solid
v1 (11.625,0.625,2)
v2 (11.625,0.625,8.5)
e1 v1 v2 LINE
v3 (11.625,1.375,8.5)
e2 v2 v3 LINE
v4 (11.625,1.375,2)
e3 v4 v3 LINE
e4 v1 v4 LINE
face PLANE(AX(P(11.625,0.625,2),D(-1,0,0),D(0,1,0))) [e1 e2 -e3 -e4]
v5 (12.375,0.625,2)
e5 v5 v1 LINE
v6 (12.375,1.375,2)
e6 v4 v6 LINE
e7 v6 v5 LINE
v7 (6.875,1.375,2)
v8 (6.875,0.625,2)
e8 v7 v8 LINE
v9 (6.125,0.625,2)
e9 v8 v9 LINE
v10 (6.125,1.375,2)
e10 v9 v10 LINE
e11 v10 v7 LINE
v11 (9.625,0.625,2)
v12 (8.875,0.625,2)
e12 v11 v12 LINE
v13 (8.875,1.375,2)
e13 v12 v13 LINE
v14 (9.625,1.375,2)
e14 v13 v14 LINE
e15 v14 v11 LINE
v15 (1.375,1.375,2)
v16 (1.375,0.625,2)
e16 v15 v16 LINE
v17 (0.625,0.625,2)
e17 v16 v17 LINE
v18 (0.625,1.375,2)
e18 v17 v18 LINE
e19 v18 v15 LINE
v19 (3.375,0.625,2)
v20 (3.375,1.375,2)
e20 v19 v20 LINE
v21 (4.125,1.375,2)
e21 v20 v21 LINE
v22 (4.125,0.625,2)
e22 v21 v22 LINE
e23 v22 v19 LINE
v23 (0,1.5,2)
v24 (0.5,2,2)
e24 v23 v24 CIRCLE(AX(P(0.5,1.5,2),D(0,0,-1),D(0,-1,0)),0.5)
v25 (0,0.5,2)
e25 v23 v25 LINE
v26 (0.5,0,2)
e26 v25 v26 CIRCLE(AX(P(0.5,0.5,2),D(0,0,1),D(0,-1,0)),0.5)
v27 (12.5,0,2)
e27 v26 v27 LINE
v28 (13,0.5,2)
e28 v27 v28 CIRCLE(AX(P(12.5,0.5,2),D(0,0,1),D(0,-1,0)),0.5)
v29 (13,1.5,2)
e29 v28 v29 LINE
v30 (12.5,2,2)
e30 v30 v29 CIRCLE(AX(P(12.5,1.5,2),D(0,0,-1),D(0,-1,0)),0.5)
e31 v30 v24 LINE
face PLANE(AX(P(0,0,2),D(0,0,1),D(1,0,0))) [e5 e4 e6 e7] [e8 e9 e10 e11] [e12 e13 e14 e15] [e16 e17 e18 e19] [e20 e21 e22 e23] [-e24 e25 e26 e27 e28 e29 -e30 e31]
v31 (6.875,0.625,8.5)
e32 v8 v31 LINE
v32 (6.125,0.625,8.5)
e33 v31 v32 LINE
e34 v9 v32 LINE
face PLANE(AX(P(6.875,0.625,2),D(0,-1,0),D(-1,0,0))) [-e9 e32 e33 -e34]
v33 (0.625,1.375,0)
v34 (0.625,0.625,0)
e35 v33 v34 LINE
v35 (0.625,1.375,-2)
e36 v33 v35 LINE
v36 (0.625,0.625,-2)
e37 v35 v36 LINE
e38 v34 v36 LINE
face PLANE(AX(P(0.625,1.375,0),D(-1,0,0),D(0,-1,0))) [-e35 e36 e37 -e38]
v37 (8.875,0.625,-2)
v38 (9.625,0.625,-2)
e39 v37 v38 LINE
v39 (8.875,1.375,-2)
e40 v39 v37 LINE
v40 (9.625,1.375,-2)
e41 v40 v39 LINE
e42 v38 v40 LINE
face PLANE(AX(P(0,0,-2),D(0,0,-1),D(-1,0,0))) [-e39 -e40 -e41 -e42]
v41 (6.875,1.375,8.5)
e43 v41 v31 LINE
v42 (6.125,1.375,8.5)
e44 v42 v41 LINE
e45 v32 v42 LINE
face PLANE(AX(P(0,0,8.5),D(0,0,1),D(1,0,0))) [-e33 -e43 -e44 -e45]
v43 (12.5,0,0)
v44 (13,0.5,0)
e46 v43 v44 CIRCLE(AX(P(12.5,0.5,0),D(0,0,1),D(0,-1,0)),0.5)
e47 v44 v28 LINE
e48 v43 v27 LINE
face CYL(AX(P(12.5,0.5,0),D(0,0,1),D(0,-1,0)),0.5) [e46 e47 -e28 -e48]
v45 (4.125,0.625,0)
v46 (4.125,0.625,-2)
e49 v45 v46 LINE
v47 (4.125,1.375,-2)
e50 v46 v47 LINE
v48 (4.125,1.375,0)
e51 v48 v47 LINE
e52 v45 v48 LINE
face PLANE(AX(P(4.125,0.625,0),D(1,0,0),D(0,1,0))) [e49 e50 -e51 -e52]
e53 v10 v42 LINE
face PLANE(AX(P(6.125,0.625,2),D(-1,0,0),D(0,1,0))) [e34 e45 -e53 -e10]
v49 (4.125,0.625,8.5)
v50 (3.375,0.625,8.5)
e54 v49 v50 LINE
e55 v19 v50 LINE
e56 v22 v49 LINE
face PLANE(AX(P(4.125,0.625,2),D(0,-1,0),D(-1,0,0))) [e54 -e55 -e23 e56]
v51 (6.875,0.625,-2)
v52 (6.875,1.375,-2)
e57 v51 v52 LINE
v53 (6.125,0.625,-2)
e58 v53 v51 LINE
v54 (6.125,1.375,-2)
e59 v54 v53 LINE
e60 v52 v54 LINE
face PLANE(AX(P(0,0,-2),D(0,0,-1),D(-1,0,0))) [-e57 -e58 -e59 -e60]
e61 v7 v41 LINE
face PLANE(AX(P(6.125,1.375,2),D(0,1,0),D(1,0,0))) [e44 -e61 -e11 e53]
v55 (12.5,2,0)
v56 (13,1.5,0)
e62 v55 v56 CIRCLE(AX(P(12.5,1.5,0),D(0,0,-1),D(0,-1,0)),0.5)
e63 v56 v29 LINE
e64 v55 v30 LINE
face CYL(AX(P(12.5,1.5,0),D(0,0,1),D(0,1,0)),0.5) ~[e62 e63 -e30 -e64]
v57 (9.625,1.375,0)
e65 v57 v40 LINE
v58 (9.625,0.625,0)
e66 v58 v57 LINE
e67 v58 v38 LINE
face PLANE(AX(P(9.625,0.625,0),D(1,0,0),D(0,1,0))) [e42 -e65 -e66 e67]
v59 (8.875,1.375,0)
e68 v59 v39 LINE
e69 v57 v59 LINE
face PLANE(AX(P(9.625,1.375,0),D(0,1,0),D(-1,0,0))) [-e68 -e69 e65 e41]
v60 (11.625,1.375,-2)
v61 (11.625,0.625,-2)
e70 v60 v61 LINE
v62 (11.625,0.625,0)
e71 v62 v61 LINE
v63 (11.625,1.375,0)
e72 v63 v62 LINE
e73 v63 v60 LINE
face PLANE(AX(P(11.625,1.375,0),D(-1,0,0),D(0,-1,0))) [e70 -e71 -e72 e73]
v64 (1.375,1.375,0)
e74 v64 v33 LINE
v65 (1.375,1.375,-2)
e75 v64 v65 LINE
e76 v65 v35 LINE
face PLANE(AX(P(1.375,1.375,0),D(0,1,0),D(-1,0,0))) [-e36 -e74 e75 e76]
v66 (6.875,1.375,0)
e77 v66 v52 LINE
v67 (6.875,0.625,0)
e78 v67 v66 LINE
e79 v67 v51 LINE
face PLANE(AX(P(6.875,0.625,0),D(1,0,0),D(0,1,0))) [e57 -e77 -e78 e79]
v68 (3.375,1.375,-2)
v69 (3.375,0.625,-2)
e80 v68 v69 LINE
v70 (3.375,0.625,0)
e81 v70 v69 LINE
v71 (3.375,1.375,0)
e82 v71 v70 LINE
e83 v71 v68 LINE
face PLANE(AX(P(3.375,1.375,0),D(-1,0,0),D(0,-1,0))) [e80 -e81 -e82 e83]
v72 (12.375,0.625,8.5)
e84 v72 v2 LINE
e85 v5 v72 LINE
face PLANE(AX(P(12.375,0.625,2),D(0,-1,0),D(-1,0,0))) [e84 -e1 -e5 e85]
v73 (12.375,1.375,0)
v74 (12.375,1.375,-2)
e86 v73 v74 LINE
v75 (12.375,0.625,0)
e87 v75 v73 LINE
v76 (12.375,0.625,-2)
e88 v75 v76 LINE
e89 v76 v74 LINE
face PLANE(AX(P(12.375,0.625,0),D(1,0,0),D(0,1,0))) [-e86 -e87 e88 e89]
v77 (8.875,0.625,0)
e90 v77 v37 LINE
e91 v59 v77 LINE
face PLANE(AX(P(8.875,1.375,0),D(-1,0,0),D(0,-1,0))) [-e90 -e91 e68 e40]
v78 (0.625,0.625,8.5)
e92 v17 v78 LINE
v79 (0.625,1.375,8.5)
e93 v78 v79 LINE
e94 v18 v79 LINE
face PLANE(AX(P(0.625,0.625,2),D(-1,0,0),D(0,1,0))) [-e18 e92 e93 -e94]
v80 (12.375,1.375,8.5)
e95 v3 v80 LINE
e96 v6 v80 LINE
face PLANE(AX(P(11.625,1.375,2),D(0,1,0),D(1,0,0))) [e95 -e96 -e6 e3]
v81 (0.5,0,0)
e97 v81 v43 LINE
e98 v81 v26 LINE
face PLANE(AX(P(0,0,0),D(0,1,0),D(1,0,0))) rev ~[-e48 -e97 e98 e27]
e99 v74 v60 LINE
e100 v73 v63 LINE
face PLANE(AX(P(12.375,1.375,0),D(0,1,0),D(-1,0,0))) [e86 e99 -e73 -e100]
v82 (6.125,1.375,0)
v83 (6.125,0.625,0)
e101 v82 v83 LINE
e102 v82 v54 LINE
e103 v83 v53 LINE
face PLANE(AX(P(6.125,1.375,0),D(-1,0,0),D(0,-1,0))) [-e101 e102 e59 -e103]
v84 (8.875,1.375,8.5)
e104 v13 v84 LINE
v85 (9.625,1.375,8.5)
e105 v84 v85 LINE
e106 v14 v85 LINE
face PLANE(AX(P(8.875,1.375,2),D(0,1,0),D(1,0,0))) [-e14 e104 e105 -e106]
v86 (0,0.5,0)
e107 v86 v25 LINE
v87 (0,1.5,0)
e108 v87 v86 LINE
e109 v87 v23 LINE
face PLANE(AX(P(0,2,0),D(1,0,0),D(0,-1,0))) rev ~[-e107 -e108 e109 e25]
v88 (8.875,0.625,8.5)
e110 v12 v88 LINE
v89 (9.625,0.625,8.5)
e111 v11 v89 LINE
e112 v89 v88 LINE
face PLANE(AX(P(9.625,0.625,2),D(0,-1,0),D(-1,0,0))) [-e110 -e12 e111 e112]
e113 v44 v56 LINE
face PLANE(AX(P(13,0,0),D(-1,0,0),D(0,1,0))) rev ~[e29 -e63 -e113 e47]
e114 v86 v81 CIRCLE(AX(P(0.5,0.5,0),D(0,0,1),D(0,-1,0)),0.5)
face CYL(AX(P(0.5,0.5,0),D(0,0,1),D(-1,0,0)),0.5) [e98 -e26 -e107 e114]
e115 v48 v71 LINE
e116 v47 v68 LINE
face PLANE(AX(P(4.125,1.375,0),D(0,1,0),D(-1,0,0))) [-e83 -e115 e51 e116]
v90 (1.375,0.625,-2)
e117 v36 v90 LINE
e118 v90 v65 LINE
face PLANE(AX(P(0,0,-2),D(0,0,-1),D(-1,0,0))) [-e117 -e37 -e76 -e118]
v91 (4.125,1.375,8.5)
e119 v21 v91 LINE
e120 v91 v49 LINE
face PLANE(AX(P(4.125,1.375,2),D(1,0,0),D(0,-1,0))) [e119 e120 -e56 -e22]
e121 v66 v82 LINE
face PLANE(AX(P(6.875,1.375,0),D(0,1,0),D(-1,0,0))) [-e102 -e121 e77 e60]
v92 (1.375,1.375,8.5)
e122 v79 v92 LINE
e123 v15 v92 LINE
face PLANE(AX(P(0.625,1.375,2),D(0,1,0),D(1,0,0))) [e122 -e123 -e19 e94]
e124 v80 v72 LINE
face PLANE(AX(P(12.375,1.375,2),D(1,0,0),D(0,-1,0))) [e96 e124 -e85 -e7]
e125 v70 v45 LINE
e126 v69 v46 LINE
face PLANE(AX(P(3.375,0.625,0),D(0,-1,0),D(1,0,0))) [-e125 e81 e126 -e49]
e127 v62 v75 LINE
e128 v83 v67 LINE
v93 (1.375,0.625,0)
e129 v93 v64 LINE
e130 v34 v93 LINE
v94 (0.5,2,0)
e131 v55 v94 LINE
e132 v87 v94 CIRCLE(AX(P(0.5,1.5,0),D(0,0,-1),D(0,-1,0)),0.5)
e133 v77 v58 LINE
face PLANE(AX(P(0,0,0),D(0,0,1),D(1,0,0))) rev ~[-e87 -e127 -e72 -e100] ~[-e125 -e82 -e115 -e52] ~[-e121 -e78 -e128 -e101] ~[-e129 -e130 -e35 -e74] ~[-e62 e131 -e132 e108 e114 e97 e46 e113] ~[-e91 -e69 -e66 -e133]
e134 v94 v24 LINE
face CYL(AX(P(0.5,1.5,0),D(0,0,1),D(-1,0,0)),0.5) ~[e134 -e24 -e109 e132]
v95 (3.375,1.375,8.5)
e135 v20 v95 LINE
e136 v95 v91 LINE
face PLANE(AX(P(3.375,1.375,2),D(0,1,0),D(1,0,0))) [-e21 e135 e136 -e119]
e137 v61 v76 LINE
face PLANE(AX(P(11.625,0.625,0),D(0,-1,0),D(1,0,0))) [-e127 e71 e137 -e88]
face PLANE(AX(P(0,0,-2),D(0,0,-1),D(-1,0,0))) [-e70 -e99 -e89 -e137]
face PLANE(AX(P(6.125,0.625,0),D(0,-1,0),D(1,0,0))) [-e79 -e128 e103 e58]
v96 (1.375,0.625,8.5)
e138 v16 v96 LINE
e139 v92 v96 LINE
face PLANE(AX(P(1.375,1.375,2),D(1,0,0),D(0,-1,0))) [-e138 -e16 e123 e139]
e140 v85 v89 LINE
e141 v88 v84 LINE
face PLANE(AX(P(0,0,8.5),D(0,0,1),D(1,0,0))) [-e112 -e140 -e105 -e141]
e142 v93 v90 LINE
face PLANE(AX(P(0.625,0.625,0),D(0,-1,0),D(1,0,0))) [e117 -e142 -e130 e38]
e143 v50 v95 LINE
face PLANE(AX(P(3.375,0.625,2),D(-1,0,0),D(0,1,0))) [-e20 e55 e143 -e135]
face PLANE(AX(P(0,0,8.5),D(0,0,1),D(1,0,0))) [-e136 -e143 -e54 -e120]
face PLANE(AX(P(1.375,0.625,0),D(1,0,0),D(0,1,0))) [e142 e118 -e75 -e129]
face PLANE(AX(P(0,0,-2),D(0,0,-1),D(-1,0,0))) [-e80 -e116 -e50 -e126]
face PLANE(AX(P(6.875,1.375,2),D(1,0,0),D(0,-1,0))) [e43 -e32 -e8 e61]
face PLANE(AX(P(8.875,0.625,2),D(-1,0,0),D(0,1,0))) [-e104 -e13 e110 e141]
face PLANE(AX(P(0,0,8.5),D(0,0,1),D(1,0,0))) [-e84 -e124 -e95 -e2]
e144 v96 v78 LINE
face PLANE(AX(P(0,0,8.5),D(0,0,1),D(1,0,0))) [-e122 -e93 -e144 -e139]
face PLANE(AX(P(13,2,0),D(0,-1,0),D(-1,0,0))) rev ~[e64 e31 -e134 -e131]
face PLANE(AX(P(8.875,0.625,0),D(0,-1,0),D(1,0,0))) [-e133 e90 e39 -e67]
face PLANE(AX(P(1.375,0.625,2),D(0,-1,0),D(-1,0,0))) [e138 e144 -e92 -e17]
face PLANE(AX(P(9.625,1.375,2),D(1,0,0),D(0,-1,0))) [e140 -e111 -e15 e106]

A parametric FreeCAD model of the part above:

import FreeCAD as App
import Part
import Sketcher
Q = App.Units.Quantity


def edges_at(feature, points):
    """Names of the edges that pass closest to the given points."""
    edges = feature.Shape.Edges
    near = lambda p: min(range(len(edges)), key=lambda i: edges[i].distToShape(Part.Vertex(*p))[0])
    return sorted({f"Edge{near(p) + 1}" for p in points})

doc = App.newDocument("Part")
body = doc.addObject("PartDesign::Body", "Body")

sketch1 = body.newObject("Sketcher::SketchObject", "Sketch")
sketch1.AttachmentSupport = (doc.getObject("XY_Plane"), [""])
sketch1.MapMode = "FlatFace"
sketch1.addGeometry([
    Part.LineSegment(App.Vector(0, 2, 0), App.Vector(0, 0, 0)),
    Part.LineSegment(App.Vector(0, 0, 0), App.Vector(13, 0, 0)),
    Part.LineSegment(App.Vector(13, 0, 0), App.Vector(13, 2, 0)),
    Part.LineSegment(App.Vector(13, 2, 0), App.Vector(0, 2, 0)),
], False)
sketch1.addConstraint([
    Sketcher.Constraint("Coincident", 0, 2, 1, 1),
    Sketcher.Constraint("Coincident", 1, 2, 2, 1),
    Sketcher.Constraint("Coincident", 2, 2, 3, 1),
    Sketcher.Constraint("Coincident", 3, 2, 0, 1),
    Sketcher.Constraint("Vertical", 0),
    Sketcher.Constraint("Horizontal", 1),
    Sketcher.Constraint("Vertical", 2),
    Sketcher.Constraint("Horizontal", 3),
    Sketcher.Constraint("Coincident", 0, 2, -1, 1),
    Sketcher.Constraint("DistanceX", 1, 1, 1, 2, Q("13 mm")),
    Sketcher.Constraint("DistanceY", 0, 2, 0, 1, Q("2 mm")),
])
pad1 = body.newObject("PartDesign::Pad", "Pad")
pad1.Profile = sketch1
pad1.Length = 2

sketch2 = body.newObject("Sketcher::SketchObject", "Sketch001")
sketch2.AttachmentSupport = (doc.getObject("XY_Plane"), [""])
sketch2.MapMode = "FlatFace"
sketch2.AttachmentOffset = App.Placement(App.Vector(0, 0, 2), App.Rotation())
sketch2.addGeometry([
    Part.LineSegment(App.Vector(6.9, 1.4, 0), App.Vector(6.1, 1.4, 0)),
    Part.LineSegment(App.Vector(6.1, 1.4, 0), App.Vector(6.1, 0.6, 0)),
    Part.LineSegment(App.Vector(6.1, 0.6, 0), App.Vector(6.9, 0.6, 0)),
    Part.LineSegment(App.Vector(6.9, 0.6, 0), App.Vector(6.9, 1.4, 0)),
    Part.LineSegment(App.Vector(9.6, 1.4, 0), App.Vector(8.9, 1.4, 0)),
    Part.LineSegment(App.Vector(8.9, 1.4, 0), App.Vector(8.9, 0.6, 0)),
    Part.LineSegment(App.Vector(8.9, 0.6, 0), App.Vector(9.6, 0.6, 0)),
    Part.LineSegment(App.Vector(9.6, 0.6, 0), App.Vector(9.6, 1.4, 0)),
    Part.LineSegment(App.Vector(12.4, 1.4, 0), App.Vector(11.6, 1.4, 0)),
    Part.LineSegment(App.Vector(11.6, 1.4, 0), App.Vector(11.6, 0.6, 0)),
    Part.LineSegment(App.Vector(11.6, 0.6, 0), App.Vector(12.4, 0.6, 0)),
    Part.LineSegment(App.Vector(12.4, 0.6, 0), App.Vector(12.4, 1.4, 0)),
    Part.LineSegment(App.Vector(4.1, 1.4, 0), App.Vector(3.4, 1.4, 0)),
    Part.LineSegment(App.Vector(3.4, 1.4, 0), App.Vector(3.4, 0.6, 0)),
    Part.LineSegment(App.Vector(3.4, 0.6, 0), App.Vector(4.1, 0.6, 0)),
    Part.LineSegment(App.Vector(4.1, 0.6, 0), App.Vector(4.1, 1.4, 0)),
    Part.LineSegment(App.Vector(1.4, 1.4, 0), App.Vector(0.6, 1.4, 0)),
    Part.LineSegment(App.Vector(0.6, 1.4, 0), App.Vector(0.6, 0.6, 0)),
    Part.LineSegment(App.Vector(0.6, 0.6, 0), App.Vector(1.4, 0.6, 0)),
    Part.LineSegment(App.Vector(1.4, 0.6, 0), App.Vector(1.4, 1.4, 0)),
], False)
sketch2.addConstraint([
    Sketcher.Constraint("Coincident", 0, 2, 1, 1),
    Sketcher.Constraint("Coincident", 1, 2, 2, 1),
    Sketcher.Constraint("Coincident", 2, 2, 3, 1),
    Sketcher.Constraint("Coincident", 3, 2, 0, 1),
    Sketcher.Constraint("Coincident", 4, 2, 5, 1),
    Sketcher.Constraint("Coincident", 5, 2, 6, 1),
    Sketcher.Constraint("Coincident", 6, 2, 7, 1),
    Sketcher.Constraint("Coincident", 7, 2, 4, 1),
    Sketcher.Constraint("Coincident", 8, 2, 9, 1),
    Sketcher.Constraint("Coincident", 9, 2, 10, 1),
    Sketcher.Constraint("Coincident", 10, 2, 11, 1),
    Sketcher.Constraint("Coincident", 11, 2, 8, 1),
    Sketcher.Constraint("Coincident", 12, 2, 13, 1),
    Sketcher.Constraint("Coincident", 13, 2, 14, 1),
    Sketcher.Constraint("Coincident", 14, 2, 15, 1),
    Sketcher.Constraint("Coincident", 15, 2, 12, 1),
    Sketcher.Constraint("Coincident", 16, 2, 17, 1),
    Sketcher.Constraint("Coincident", 17, 2, 18, 1),
    Sketcher.Constraint("Coincident", 18, 2, 19, 1),
    Sketcher.Constraint("Coincident", 19, 2, 16, 1),
    Sketcher.Constraint("Horizontal", 0),
    Sketcher.Constraint("Vertical", 1),
    Sketcher.Constraint("Horizontal", 2),
    Sketcher.Constraint("Vertical", 3),
    Sketcher.Constraint("Horizontal", 4),
    Sketcher.Constraint("Vertical", 5),
    Sketcher.Constraint("Horizontal", 6),
    Sketcher.Constraint("Vertical", 7),
    Sketcher.Constraint("Horizontal", 8),
    Sketcher.Constraint("Vertical", 9),
    Sketcher.Constraint("Horizontal", 10),
    Sketcher.Constraint("Vertical", 11),
    Sketcher.Constraint("Horizontal", 12),
    Sketcher.Constraint("Vertical", 13),
    Sketcher.Constraint("Horizontal", 14),
    Sketcher.Constraint("Vertical", 15),
    Sketcher.Constraint("Horizontal", 16),
    Sketcher.Constraint("Vertical", 17),
    Sketcher.Constraint("Horizontal", 18),
    Sketcher.Constraint("Vertical", 19),
    Sketcher.Constraint("Horizontal", 3, 2, 4, 2),
    Sketcher.Constraint("Horizontal", 2, 2, 5, 2),
    Sketcher.Constraint("Horizontal", 7, 2, 8, 2),
    Sketcher.Constraint("Horizontal", 6, 2, 9, 2),
    Sketcher.Constraint("Horizontal", 11, 2, 12, 2),
    Sketcher.Constraint("Horizontal", 10, 2, 13, 2),
    Sketcher.Constraint("Horizontal", 15, 2, 16, 2),
    Sketcher.Constraint("Horizontal", 14, 2, 17, 2),
    Sketcher.Constraint("Equal", 2, 4),
    Sketcher.Constraint("Equal", 6, 8),
    Sketcher.Constraint("Equal", 10, 12),
    Sketcher.Constraint("Equal", 14, 16),
    Sketcher.Constraint("Equal", 18, 1),
    Sketcher.Constraint("DistanceX", 0, 2, 0, 1, Q("0.75 mm")),
    Sketcher.Constraint("DistanceX", 0, 2, 4, 2, Q("2.75 mm")),
    Sketcher.Constraint("DistanceX", 4, 2, 8, 2, Q("2.75 mm")),
    Sketcher.Constraint("DistanceX", 12, 2, 0, 2, Q("2.75 mm")),
    Sketcher.Constraint("DistanceX", 16, 2, 12, 2, Q("2.75 mm")),
    Sketcher.Constraint("DistanceX", -1, 1, 0, 2, Q("6.125 mm")),
    Sketcher.Constraint("DistanceY", -1, 1, 0, 2, Q("1.375 mm")),
])
pad2 = body.newObject("PartDesign::Pad", "Pad001")
pad2.Profile = sketch2
pad2.Length = 6.5

sketch3 = body.newObject("Sketcher::SketchObject", "Sketch002")
sketch3.AttachmentSupport = (doc.getObject("XY_Plane"), [""])
sketch3.MapMode = "FlatFace"
sketch3.addGeometry([
    Part.LineSegment(App.Vector(0.6, 1.4, 0), App.Vector(1.4, 1.4, 0)),
    Part.LineSegment(App.Vector(1.4, 1.4, 0), App.Vector(1.4, 0.6, 0)),
    Part.LineSegment(App.Vector(1.4, 0.6, 0), App.Vector(0.6, 0.6, 0)),
    Part.LineSegment(App.Vector(0.6, 0.6, 0), App.Vector(0.6, 1.4, 0)),
    Part.LineSegment(App.Vector(3.4, 1.4, 0), App.Vector(4.1, 1.4, 0)),
    Part.LineSegment(App.Vector(4.1, 1.4, 0), App.Vector(4.1, 0.6, 0)),
    Part.LineSegment(App.Vector(4.1, 0.6, 0), App.Vector(3.4, 0.6, 0)),
    Part.LineSegment(App.Vector(3.4, 0.6, 0), App.Vector(3.4, 1.4, 0)),
    Part.LineSegment(App.Vector(6.1, 1.4, 0), App.Vector(6.9, 1.4, 0)),
    Part.LineSegment(App.Vector(6.9, 1.4, 0), App.Vector(6.9, 0.6, 0)),
    Part.LineSegment(App.Vector(6.9, 0.6, 0), App.Vector(6.1, 0.6, 0)),
    Part.LineSegment(App.Vector(6.1, 0.6, 0), App.Vector(6.1, 1.4, 0)),
    Part.LineSegment(App.Vector(9.6, 1.4, 0), App.Vector(9.6, 0.6, 0)),
    Part.LineSegment(App.Vector(9.6, 0.6, 0), App.Vector(8.9, 0.6, 0)),
    Part.LineSegment(App.Vector(8.9, 0.6, 0), App.Vector(8.9, 1.4, 0)),
    Part.LineSegment(App.Vector(8.9, 1.4, 0), App.Vector(9.6, 1.4, 0)),
    Part.LineSegment(App.Vector(11.6, 1.4, 0), App.Vector(12.4, 1.4, 0)),
    Part.LineSegment(App.Vector(12.4, 1.4, 0), App.Vector(12.4, 0.6, 0)),
    Part.LineSegment(App.Vector(12.4, 0.6, 0), App.Vector(11.6, 0.6, 0)),
    Part.LineSegment(App.Vector(11.6, 0.6, 0), App.Vector(11.6, 1.4, 0)),
], False)
sketch3.addConstraint([
    Sketcher.Constraint("Coincident", 0, 2, 1, 1),
    Sketcher.Constraint("Coincident", 1, 2, 2, 1),
    Sketcher.Constraint("Coincident", 2, 2, 3, 1),
    Sketcher.Constraint("Coincident", 3, 2, 0, 1),
    Sketcher.Constraint("Coincident", 4, 2, 5, 1),
    Sketcher.Constraint("Coincident", 5, 2, 6, 1),
    Sketcher.Constraint("Coincident", 6, 2, 7, 1),
    Sketcher.Constraint("Coincident", 7, 2, 4, 1),
    Sketcher.Constraint("Coincident", 8, 2, 9, 1),
    Sketcher.Constraint("Coincident", 9, 2, 10, 1),
    Sketcher.Constraint("Coincident", 10, 2, 11, 1),
    Sketcher.Constraint("Coincident", 11, 2, 8, 1),
    Sketcher.Constraint("Coincident", 12, 2, 13, 1),
    Sketcher.Constraint("Coincident", 13, 2, 14, 1),
    Sketcher.Constraint("Coincident", 14, 2, 15, 1),
    Sketcher.Constraint("Coincident", 15, 2, 12, 1),
    Sketcher.Constraint("Coincident", 16, 2, 17, 1),
    Sketcher.Constraint("Coincident", 17, 2, 18, 1),
    Sketcher.Constraint("Coincident", 18, 2, 19, 1),
    Sketcher.Constraint("Coincident", 19, 2, 16, 1),
    Sketcher.Constraint("Horizontal", 0),
    Sketcher.Constraint("Vertical", 1),
    Sketcher.Constraint("Horizontal", 2),
    Sketcher.Constraint("Vertical", 3),
    Sketcher.Constraint("Horizontal", 4),
    Sketcher.Constraint("Vertical", 5),
    Sketcher.Constraint("Horizontal", 6),
    Sketcher.Constraint("Vertical", 7),
    Sketcher.Constraint("Horizontal", 8),
    Sketcher.Constraint("Vertical", 9),
    Sketcher.Constraint("Horizontal", 10),
    Sketcher.Constraint("Vertical", 11),
    Sketcher.Constraint("Vertical", 12),
    Sketcher.Constraint("Horizontal", 13),
    Sketcher.Constraint("Vertical", 14),
    Sketcher.Constraint("Horizontal", 15),
    Sketcher.Constraint("Horizontal", 16),
    Sketcher.Constraint("Vertical", 17),
    Sketcher.Constraint("Horizontal", 18),
    Sketcher.Constraint("Vertical", 19),
    Sketcher.Constraint("Horizontal", 3, 2, 4, 2),
    Sketcher.Constraint("Horizontal", 2, 2, 5, 2),
    Sketcher.Constraint("Horizontal", 7, 2, 8, 2),
    Sketcher.Constraint("Horizontal", 6, 2, 9, 2),
    Sketcher.Constraint("Horizontal", 10, 2, 12, 2),
    Sketcher.Constraint("Horizontal", 11, 2, 14, 2),
    Sketcher.Constraint("Horizontal", 15, 2, 16, 2),
    Sketcher.Constraint("Horizontal", 13, 2, 17, 2),
    Sketcher.Constraint("Equal", 2, 4),
    Sketcher.Constraint("Equal", 6, 8),
    Sketcher.Constraint("Equal", 10, 13),
    Sketcher.Constraint("Equal", 15, 16),
    Sketcher.Constraint("Equal", 18, 1),
    Sketcher.Constraint("DistanceX", 1, 2, 6, 2, Q("2 mm")),
    Sketcher.Constraint("DistanceX", 5, 2, 10, 2, Q("2 mm")),
    Sketcher.Constraint("DistanceX", 9, 2, 13, 2, Q("2 mm")),
    Sketcher.Constraint("DistanceX", 12, 2, 18, 2, Q("2 mm")),
    Sketcher.Constraint("DistanceX", 0, 1, 0, 2, Q("0.75 mm")),
    Sketcher.Constraint("DistanceX", -1, 1, 0, 2, Q("1.375 mm")),
    Sketcher.Constraint("DistanceY", -1, 1, 0, 2, Q("1.375 mm")),
])
pad3 = body.newObject("PartDesign::Pad", "Pad002")
pad3.Profile = sketch3
pad3.Length = 2
pad3.Reversed = True
doc.recompute()

fillet = body.newObject("PartDesign::Fillet", "Fillet")
fillet.Base = (pad3, edges_at(pad3, [
    (0, 0, 1),
    (0, 2, 1),
    (13, 0, 1),
    (13, 2, 1),
]))
fillet.Radius = 0.5

doc.recompute()
